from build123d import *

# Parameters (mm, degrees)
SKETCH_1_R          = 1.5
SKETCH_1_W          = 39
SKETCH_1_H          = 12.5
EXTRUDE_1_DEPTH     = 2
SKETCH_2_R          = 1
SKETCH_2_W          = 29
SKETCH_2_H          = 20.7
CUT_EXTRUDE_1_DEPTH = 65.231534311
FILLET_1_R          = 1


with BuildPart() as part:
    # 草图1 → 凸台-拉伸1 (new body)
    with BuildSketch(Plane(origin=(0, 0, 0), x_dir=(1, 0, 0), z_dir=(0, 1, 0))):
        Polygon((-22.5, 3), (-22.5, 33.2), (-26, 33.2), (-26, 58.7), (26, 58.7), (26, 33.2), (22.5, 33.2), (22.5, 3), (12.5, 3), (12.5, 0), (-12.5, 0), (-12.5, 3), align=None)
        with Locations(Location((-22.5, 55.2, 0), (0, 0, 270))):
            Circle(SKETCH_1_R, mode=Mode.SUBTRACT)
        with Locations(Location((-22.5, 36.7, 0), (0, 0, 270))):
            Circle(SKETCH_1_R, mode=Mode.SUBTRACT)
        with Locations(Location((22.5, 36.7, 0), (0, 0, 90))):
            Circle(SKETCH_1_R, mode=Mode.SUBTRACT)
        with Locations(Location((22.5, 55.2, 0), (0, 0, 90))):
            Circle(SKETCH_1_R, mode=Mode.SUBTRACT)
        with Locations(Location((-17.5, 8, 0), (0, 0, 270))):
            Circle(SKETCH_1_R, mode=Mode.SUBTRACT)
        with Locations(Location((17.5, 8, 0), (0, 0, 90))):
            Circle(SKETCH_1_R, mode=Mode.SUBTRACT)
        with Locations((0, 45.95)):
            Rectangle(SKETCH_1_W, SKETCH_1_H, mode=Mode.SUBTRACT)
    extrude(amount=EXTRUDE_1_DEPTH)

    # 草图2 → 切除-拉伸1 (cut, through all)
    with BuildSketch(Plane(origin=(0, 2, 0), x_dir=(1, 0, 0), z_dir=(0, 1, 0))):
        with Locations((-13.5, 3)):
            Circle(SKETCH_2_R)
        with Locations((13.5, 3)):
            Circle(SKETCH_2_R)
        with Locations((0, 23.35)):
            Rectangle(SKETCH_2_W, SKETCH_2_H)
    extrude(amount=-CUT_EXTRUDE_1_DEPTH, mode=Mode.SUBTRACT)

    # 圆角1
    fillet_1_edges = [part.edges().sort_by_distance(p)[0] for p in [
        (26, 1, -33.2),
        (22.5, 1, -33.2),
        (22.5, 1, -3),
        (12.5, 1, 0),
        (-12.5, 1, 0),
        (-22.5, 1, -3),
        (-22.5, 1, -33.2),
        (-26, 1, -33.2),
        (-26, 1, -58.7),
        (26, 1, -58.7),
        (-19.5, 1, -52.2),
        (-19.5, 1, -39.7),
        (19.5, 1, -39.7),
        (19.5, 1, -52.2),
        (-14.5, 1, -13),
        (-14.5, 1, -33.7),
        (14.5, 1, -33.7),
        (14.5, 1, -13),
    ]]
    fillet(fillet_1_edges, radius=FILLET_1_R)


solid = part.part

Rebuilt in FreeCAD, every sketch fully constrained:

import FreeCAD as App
import Part
import Sketcher
Q = App.Units.Quantity


def edges_at(feature, points):
    """Names of the edges that pass closest to the given points."""
    edges = feature.Shape.Edges
    near = lambda p: min(range(len(edges)), key=lambda i: edges[i].distToShape(Part.Vertex(*p))[0])
    return sorted({f"Edge{near(p) + 1}" for p in points})


def add_polygon(sketch, points):
    """Adds a closed chain of lines whose ends are joined by coincident constraints."""
    first, n = sketch.GeometryCount, len(points)
    for a, b in zip(points, points[1:] + points[:1]):
        sketch.addGeometry(Part.LineSegment(App.Vector(*a, 0), App.Vector(*b, 0)), False)
    for i in range(n):
        sketch.addConstraint(Sketcher.Constraint("Coincident", first + i, 2, first + (i + 1) % n, 1))

doc = App.newDocument("Part")
body = doc.addObject("PartDesign::Body", "Body")

sketch1 = body.newObject("Sketcher::SketchObject", "Sketch")
sketch1.AttachmentSupport = (doc.getObject("XZ_Plane"), [""])
sketch1.MapMode = "FlatFace"
add_polygon(sketch1, [(-22.5, -33.2), (-22.5, -3), (-12.5, -3), (-12.5, 0), (12.5, 0), (12.5, -3), (22.5, -3), (22.5, -33.2), (26, -33.2), (26, -58.7), (-26, -58.7), (-26, -33.2)])
sketch1.addGeometry(Part.Circle(App.Vector(17.5, -8, 0), App.Vector(0, 0, 1), 1.5), False)
sketch1.addGeometry(Part.Circle(App.Vector(-17.5, -8, 0), App.Vector(0, 0, 1), 1.5), False)
sketch1.addGeometry(Part.Circle(App.Vector(22.5, -36.7, 0), App.Vector(0, 0, 1), 1.5), False)
sketch1.addGeometry(Part.Circle(App.Vector(22.5, -55.2, 0), App.Vector(0, 0, 1), 1.5), False)
sketch1.addGeometry(Part.Circle(App.Vector(-22.5, -36.7, 0), App.Vector(0, 0, 1), 1.5), False)
add_polygon(sketch1, [(-19.5, -39.7), (-19.5, -52.2), (19.5, -52.2), (19.5, -39.7)])
sketch1.addGeometry(Part.Circle(App.Vector(-22.5, -55.2, 0), App.Vector(0, 0, 1), 1.5), False)
sketch1.addConstraint([
    Sketcher.Constraint("Vertical", 0),
    Sketcher.Constraint("Horizontal", 1),
    Sketcher.Constraint("Vertical", 2),
    Sketcher.Constraint("Horizontal", 3),
    Sketcher.Constraint("Vertical", 4),
    Sketcher.Constraint("Horizontal", 5),
    Sketcher.Constraint("Vertical", 6),
    Sketcher.Constraint("Horizontal", 7),
    Sketcher.Constraint("Vertical", 8),
    Sketcher.Constraint("Horizontal", 9),
    Sketcher.Constraint("Vertical", 10),
    Sketcher.Constraint("Horizontal", 11),
    Sketcher.Constraint("Vertical", 17),
    Sketcher.Constraint("Horizontal", 18),
    Sketcher.Constraint("Vertical", 19),
    Sketcher.Constraint("Horizontal", 20),
    Sketcher.Constraint("Equal", 12, 13),
    Sketcher.Constraint("Equal", 13, 14),
    Sketcher.Constraint("Equal", 14, 15),
    Sketcher.Constraint("Equal", 15, 16),
    Sketcher.Constraint("Equal", 16, 21),
    Sketcher.Constraint("Symmetric", 2, 2, 3, 2, -1, 1),
    Sketcher.Constraint("Symmetric", 12, 3, 13, 3, -2),
    Sketcher.Constraint("Symmetric", 14, 3, 16, 3, -2),
    Sketcher.Constraint("Symmetric", 15, 3, 21, 3, -2),
    Sketcher.Constraint("Symmetric", 0, 2, 5, 2, -2),
    Sketcher.Constraint("Symmetric", 7, 2, 10, 2, -2),
    Sketcher.Constraint("Vertical", 14, 3, 15, 3),
    Sketcher.Constraint("Vertical", 21, 3, 0, 2),
    Sketcher.Constraint("Diameter", 12, Q("3 mm")),
    Sketcher.Constraint("DistanceX", 1, 1, 1, 2, Q("10 mm")),
    Sketcher.Constraint("DistanceX", 3, 1, 3, 2, Q("25 mm")),
    Sketcher.Constraint("DistanceX", 9, 2, 9, 1, Q("52 mm")),
    Sketcher.Constraint("DistanceX", 18, 1, 18, 2, Q("39 mm")),
    Sketcher.Constraint("DistanceY", 2, 1, 2, 2, Q("3 mm")),
    Sketcher.Constraint("DistanceY", 0, 1, 0, 2, Q("30.2 mm")),
    Sketcher.Constraint("DistanceY", 8, 2, 8, 1, Q("25.5 mm")),
    Sketcher.Constraint("DistanceY", 17, 2, 17, 1, Q("12.5 mm")),
    Sketcher.Constraint("DistanceY", 12, 3, -1, 1, Q("8 mm")),
    Sketcher.Constraint("DistanceX", 13, 3, 12, 3, Q("35 mm")),
    Sketcher.Constraint("DistanceY", 15, 3, 6, 2, Q("22 mm")),
    Sketcher.Constraint("DistanceY", 8, 2, 14, 3, Q("22 mm")),
    Sketcher.Constraint("DistanceX", 21, 3, 17, 2, Q("3 mm")),
    Sketcher.Constraint("DistanceY", 21, 3, 17, 2, Q("3 mm")),
])
pad1 = body.newObject("PartDesign::Pad", "Pad")
pad1.Profile = sketch1
pad1.Length = 2
pad1.Reversed = True

sketch2 = body.newObject("Sketcher::SketchObject", "Sketch001")
sketch2.AttachmentSupport = (doc.getObject("XZ_Plane"), [""])
sketch2.MapMode = "FlatFace"
sketch2.AttachmentOffset = App.Placement(App.Vector(0, 0, -2), App.Rotation())
sketch2.addGeometry(Part.Circle(App.Vector(-13.5, -3, 0), App.Vector(0, 0, 1), 1), False)
sketch2.addGeometry(Part.Circle(App.Vector(13.5, -3, 0), App.Vector(0, 0, 1), 1), False)
add_polygon(sketch2, [(-14.5, -33.7), (-14.5, -13), (14.5, -13), (14.5, -33.7)])
sketch2.addConstraint([
    Sketcher.Constraint("Vertical", 2),
    Sketcher.Constraint("Horizontal", 3),
    Sketcher.Constraint("Vertical", 4),
    Sketcher.Constraint("Horizontal", 5),
    Sketcher.Constraint("Equal", 0, 1),
    Sketcher.Constraint("Symmetric", 0, 3, 1, 3, -2),
    Sketcher.Constraint("Diameter", 0, Q("2 mm")),
    Sketcher.Constraint("DistanceX", 3, 1, 3, 2, Q("29 mm")),
    Sketcher.Constraint("DistanceY", 2, 1, 2, 2, Q("20.7 mm")),
    Sketcher.Constraint("DistanceY", 0, 3, -1, 1, Q("3 mm")),
    Sketcher.Constraint("DistanceY", 2, 2, -1, 1, Q("13 mm")),
    Sketcher.Constraint("DistanceX", 0, 3, 1, 3, Q("27 mm")),
    Sketcher.Constraint("DistanceX", 2, 2, 0, 3, Q("1 mm")),
])
pocket1 = body.newObject("PartDesign::Pocket", "Pocket")
pocket1.Profile = sketch2
pocket1.Type = "ThroughAll"
pocket1.Reversed = True
doc.recompute()

fillet = body.newObject("PartDesign::Fillet", "Fillet")
fillet.Base = (pocket1, edges_at(pocket1, [
    (26, 1, -33.2),
    (22.5, 1, -33.2),
    (22.5, 1, -3),
    (12.5, 1, 0),
    (-12.5, 1, 0),
    (-22.5, 1, -3),
    (-22.5, 1, -33.2),
    (-26, 1, -33.2),
    (-26, 1, -58.7),
    (26, 1, -58.7),
    (-19.5, 1, -52.2),
    (-19.5, 1, -39.7),
    (19.5, 1, -39.7),
    (19.5, 1, -52.2),
    (-14.5, 1, -13),
    (-14.5, 1, -33.7),
    (14.5, 1, -33.7),
    (14.5, 1, -13),
]))
fillet.Radius = 1

doc.recompute()
